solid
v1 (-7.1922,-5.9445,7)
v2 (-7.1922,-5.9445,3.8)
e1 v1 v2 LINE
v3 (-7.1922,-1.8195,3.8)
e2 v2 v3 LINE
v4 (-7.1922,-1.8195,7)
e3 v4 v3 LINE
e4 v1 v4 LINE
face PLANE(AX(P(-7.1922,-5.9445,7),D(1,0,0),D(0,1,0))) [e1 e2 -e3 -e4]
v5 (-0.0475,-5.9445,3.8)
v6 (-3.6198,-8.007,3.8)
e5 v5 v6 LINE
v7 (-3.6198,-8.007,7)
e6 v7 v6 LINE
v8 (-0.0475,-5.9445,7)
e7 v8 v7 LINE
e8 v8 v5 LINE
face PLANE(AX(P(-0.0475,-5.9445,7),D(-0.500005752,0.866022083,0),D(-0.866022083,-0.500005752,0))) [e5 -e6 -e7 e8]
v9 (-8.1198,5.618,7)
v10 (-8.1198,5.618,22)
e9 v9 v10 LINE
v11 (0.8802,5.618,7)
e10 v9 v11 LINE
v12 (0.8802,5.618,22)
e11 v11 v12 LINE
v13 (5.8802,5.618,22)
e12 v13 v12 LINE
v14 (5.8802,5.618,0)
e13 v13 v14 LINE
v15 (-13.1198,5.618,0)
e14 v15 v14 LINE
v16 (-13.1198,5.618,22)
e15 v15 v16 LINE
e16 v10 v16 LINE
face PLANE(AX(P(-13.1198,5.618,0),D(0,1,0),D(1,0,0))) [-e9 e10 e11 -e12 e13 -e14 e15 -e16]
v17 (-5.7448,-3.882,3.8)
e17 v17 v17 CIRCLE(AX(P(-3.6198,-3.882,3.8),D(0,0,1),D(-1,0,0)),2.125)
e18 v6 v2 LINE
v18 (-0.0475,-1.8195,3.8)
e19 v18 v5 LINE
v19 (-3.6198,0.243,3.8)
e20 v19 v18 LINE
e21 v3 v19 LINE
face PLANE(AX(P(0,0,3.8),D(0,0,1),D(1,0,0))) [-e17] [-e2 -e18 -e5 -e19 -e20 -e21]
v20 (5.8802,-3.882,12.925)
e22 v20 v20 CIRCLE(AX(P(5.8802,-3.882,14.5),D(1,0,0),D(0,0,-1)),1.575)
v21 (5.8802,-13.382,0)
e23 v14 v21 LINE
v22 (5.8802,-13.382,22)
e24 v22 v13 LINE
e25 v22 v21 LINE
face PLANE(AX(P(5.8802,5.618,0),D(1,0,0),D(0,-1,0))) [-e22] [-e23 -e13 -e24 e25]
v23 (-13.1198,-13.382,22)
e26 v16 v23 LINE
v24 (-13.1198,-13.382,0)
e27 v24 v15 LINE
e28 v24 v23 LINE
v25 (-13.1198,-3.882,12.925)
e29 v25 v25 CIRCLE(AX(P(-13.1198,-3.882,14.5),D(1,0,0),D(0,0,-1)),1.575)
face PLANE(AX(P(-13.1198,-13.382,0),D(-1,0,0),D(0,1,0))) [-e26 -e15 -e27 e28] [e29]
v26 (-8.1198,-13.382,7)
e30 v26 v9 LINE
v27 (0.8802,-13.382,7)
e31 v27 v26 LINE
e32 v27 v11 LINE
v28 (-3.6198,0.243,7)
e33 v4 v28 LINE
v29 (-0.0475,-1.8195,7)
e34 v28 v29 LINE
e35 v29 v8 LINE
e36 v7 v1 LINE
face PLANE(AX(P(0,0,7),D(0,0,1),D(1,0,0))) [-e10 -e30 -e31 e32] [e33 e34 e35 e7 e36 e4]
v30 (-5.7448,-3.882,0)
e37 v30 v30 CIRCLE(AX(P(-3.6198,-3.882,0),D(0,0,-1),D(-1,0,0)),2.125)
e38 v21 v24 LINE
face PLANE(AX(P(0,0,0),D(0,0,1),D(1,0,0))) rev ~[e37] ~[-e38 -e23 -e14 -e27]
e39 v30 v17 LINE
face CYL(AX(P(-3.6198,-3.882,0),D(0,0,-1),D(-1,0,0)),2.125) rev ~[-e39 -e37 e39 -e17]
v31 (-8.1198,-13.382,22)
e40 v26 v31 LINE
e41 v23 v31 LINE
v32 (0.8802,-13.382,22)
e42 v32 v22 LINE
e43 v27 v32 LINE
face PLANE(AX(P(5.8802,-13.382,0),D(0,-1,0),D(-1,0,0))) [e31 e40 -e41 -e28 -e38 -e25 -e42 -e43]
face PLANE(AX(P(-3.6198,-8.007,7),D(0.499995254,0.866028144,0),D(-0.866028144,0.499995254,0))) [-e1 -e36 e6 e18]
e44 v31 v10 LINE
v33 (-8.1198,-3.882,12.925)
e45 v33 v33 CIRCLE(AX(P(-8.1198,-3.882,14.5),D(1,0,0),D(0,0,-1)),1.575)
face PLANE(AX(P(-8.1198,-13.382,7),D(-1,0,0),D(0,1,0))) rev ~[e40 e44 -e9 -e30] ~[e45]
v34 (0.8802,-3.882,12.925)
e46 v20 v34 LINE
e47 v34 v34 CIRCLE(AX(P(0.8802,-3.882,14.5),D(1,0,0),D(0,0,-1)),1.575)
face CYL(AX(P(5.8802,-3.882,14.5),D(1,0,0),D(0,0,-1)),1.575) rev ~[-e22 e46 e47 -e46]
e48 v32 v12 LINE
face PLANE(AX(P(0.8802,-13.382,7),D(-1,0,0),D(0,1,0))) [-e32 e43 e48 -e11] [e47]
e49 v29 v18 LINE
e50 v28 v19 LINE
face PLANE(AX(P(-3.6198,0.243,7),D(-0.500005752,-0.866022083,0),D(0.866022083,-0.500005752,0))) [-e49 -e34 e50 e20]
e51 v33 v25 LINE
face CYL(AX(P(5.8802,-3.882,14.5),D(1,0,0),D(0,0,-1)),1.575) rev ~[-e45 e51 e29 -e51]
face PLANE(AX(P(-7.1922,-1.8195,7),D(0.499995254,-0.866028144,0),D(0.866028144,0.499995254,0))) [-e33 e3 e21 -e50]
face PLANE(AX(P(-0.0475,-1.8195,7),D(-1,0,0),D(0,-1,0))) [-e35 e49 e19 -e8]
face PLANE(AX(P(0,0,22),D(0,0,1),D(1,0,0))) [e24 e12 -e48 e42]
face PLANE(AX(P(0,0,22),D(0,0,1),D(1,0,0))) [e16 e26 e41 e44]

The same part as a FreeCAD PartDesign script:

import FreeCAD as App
import Part
import Sketcher
from FreeCAD import Vector
Q = App.Units.Quantity

doc = App.newDocument("Part")
body = doc.addObject("PartDesign::Body", "Body")

sketch1 = doc.addObject("Sketcher::SketchObject", "Sketch")
body.addObject(sketch1)
sketch1.AttachmentSupport = (doc.XY_Plane, [""])
sketch1.MapMode = "FlatFace"
sketch1.addGeometry(Part.LineSegment(Vector(5.8802, 5.618, 0), Vector(-13.1198, 5.618, 0)), False)
sketch1.addGeometry(Part.LineSegment(Vector(-13.1198, 5.618, 0), Vector(-13.1198, -13.382, 0)), False)
sketch1.addGeometry(Part.LineSegment(Vector(-13.1198, -13.382, 0), Vector(5.8802, -13.382, 0)), False)
sketch1.addGeometry(Part.LineSegment(Vector(5.8802, -13.382, 0), Vector(5.8802, 5.618, 0)), False)
sketch1.addConstraint(Sketcher.Constraint("Coincident", 0, 2, 1, 1))
sketch1.addConstraint(Sketcher.Constraint("Coincident", 1, 2, 2, 1))
sketch1.addConstraint(Sketcher.Constraint("Coincident", 2, 2, 3, 1))
sketch1.addConstraint(Sketcher.Constraint("Coincident", 3, 2, 0, 1))
sketch1.addConstraint(Sketcher.Constraint("Horizontal", 0))
sketch1.addConstraint(Sketcher.Constraint("Vertical", 1))
sketch1.addConstraint(Sketcher.Constraint("Horizontal", 2))
sketch1.addConstraint(Sketcher.Constraint("Vertical", 3))
sketch1.addConstraint(Sketcher.Constraint("Equal", 2, 1))
sketch1.addConstraint(Sketcher.Constraint("DistanceX", 0, 2, 0, 1, Q("19 mm")))
sketch1.addConstraint(Sketcher.Constraint("DistanceY", -1, 1, 0, 2, Q("5.618 mm")))
sketch1.addConstraint(Sketcher.Constraint("DistanceX", 0, 2, -1, 1, Q("13.1198 mm")))
pad1 = doc.addObject("PartDesign::Pad", "Pad")
body.addObject(pad1)
pad1.Profile = sketch1
pad1.Length = 7

sketch2 = doc.addObject("Sketcher::SketchObject", "Sketch001")
body.addObject(sketch2)
sketch2.AttachmentSupport = (doc.XY_Plane, [""])
sketch2.MapMode = "FlatFace"
sketch2.AttachmentOffset = App.Placement(Vector(0, 0, 7), App.Rotation())
sketch2.addGeometry(Part.LineSegment(Vector(5.8802, -13.382, 0), Vector(5.8802, 5.618, 0)), False)
sketch2.addGeometry(Part.LineSegment(Vector(5.8802, 5.618, 0), Vector(0.8802, 5.618, 0)), False)
sketch2.addGeometry(Part.LineSegment(Vector(0.8802, 5.618, 0), Vector(0.8802, -13.382, 0)), False)
sketch2.addGeometry(Part.LineSegment(Vector(0.8802, -13.382, 0), Vector(5.8802, -13.382, 0)), False)
sketch2.addGeometry(Part.LineSegment(Vector(-8.1198, -13.382, 0), Vector(-8.1198, 5.618, 0)), False)
sketch2.addGeometry(Part.LineSegment(Vector(-8.1198, 5.618, 0), Vector(-13.1198, 5.618, 0)), False)
sketch2.addGeometry(Part.LineSegment(Vector(-13.1198, 5.618, 0), Vector(-13.1198, -13.382, 0)), False)
sketch2.addGeometry(Part.LineSegment(Vector(-13.1198, -13.382, 0), Vector(-8.1198, -13.382, 0)), False)
sketch2.addConstraint(Sketcher.Constraint("Coincident", 0, 2, 1, 1))
sketch2.addConstraint(Sketcher.Constraint("Coincident", 1, 2, 2, 1))
sketch2.addConstraint(Sketcher.Constraint("Coincident", 2, 2, 3, 1))
sketch2.addConstraint(Sketcher.Constraint("Coincident", 3, 2, 0, 1))
sketch2.addConstraint(Sketcher.Constraint("Coincident", 4, 2, 5, 1))
sketch2.addConstraint(Sketcher.Constraint("Coincident", 5, 2, 6, 1))
sketch2.addConstraint(Sketcher.Constraint("Coincident", 6, 2, 7, 1))
sketch2.addConstraint(Sketcher.Constraint("Coincident", 7, 2, 4, 1))
sketch2.addConstraint(Sketcher.Constraint("Vertical", 0))
sketch2.addConstraint(Sketcher.Constraint("Horizontal", 1))
sketch2.addConstraint(Sketcher.Constraint("Vertical", 2))
sketch2.addConstraint(Sketcher.Constraint("Horizontal", 3))
sketch2.addConstraint(Sketcher.Constraint("Vertical", 4))
sketch2.addConstraint(Sketcher.Constraint("Horizontal", 5))
sketch2.addConstraint(Sketcher.Constraint("Vertical", 6))
sketch2.addConstraint(Sketcher.Constraint("Horizontal", 7))
sketch2.addConstraint(Sketcher.Constraint("Horizontal", 1, 2, 4, 2))
sketch2.addConstraint(Sketcher.Constraint("Horizontal", 3, 2, 6, 2))
sketch2.addConstraint(Sketcher.Constraint("Equal", 3, 5))
sketch2.addConstraint(Sketcher.Constraint("DistanceX", 4, 2, 1, 2, Q("9 mm")))
sketch2.addConstraint(Sketcher.Constraint("DistanceX", 1, 2, 1, 1, Q("5 mm")))
sketch2.addConstraint(Sketcher.Constraint("DistanceY", 0, 1, 0, 2, Q("19 mm")))
sketch2.addConstraint(Sketcher.Constraint("DistanceY", -1, 1, 0, 2, Q("5.618 mm")))
sketch2.addConstraint(Sketcher.Constraint("DistanceX", -1, 1, 0, 2, Q("5.8802 mm")))
pad2 = doc.addObject("PartDesign::Pad", "Pad001")
body.addObject(pad2)
pad2.Profile = sketch2
pad2.Length = 15

sketch3 = doc.addObject("Sketcher::SketchObject", "Sketch002")
body.addObject(sketch3)
sketch3.AttachmentSupport = (doc.XY_Plane, [""])
sketch3.MapMode = "FlatFace"
sketch3.addGeometry(Part.Circle(Vector(-3.6198, -3.882, 0), Vector(0, 0, 1), 2.125), False)
sketch3.addConstraint(Sketcher.Constraint("Diameter", 0, Q("4.25 mm")))
sketch3.addConstraint(Sketcher.Constraint("DistanceY", 0, 3, -1, 1, Q("3.882 mm")))
sketch3.addConstraint(Sketcher.Constraint("DistanceX", 0, 3, -1, 1, Q("3.6198 mm")))
pocket1 = doc.addObject("PartDesign::Pocket", "Pocket")
body.addObject(pocket1)
pocket1.Profile = sketch3
pocket1.Type = "UpToFirst"
pocket1.Reversed = True

sketch4 = doc.addObject("Sketcher::SketchObject", "Sketch003")
body.addObject(sketch4)
sketch4.AttachmentSupport = (doc.YZ_Plane, [""])
sketch4.MapMode = "FlatFace"
sketch4.AttachmentOffset = App.Placement(Vector(0, 0, 5.8802), App.Rotation())
sketch4.addGeometry(Part.Circle(Vector(-3.882, 14.5, 0), Vector(0, 0, 1), 1.575), False)
sketch4.addConstraint(Sketcher.Constraint("Diameter", 0, Q("3.15 mm")))
sketch4.addConstraint(Sketcher.Constraint("DistanceY", -1, 1, 0, 3, Q("14.5 mm")))
sketch4.addConstraint(Sketcher.Constraint("DistanceX", 0, 3, -1, 1, Q("3.882 mm")))
pocket2 = doc.addObject("PartDesign::Pocket", "Pocket001")
body.addObject(pocket2)
pocket2.Profile = sketch4
pocket2.Type = "ThroughAll"

sketch5 = doc.addObject("Sketcher::SketchObject", "Sketch004")
body.addObject(sketch5)
sketch5.AttachmentSupport = (doc.XY_Plane, [""])
sketch5.MapMode = "FlatFace"
sketch5.AttachmentOffset = App.Placement(Vector(0, 0, 7), App.Rotation())
sketch5.addGeometry(Part.LineSegment(Vector(-0.0475, -1.8195, 0), Vector(-3.6198, 0.243, 0)), False)
sketch5.addGeometry(Part.LineSegment(Vector(-3.6198, 0.243, 0), Vector(-7.1922, -1.8195, 0)), False)
sketch5.addGeometry(Part.LineSegment(Vector(-7.1922, -1.8195, 0), Vector(-7.1922, -5.9445, 0)), False)
sketch5.addGeometry(Part.LineSegment(Vector(-7.1922, -5.9445, 0), Vector(-3.6198, -8.007, 0)), False)
sketch5.addGeometry(Part.LineSegment(Vector(-3.6198, -8.007, 0), Vector(-0.0475, -5.9445, 0)), False)
sketch5.addGeometry(Part.LineSegment(Vector(-0.0475, -5.9445, 0), Vector(-0.0475, -1.8195, 0)), False)
sketch5.addGeometry(Part.Circle(Vector(-3.6198, -3.882, 0), Vector(0, 0, 1), 2.125), False)
sketch5.addConstraint(Sketcher.Constraint("Coincident", 0, 2, 1, 1))
sketch5.addConstraint(Sketcher.Constraint("Coincident", 1, 2, 2, 1))
sketch5.addConstraint(Sketcher.Constraint("Coincident", 2, 2, 3, 1))
sketch5.addConstraint(Sketcher.Constraint("Coincident", 3, 2, 4, 1))
sketch5.addConstraint(Sketcher.Constraint("Coincident", 4, 2, 5, 1))
sketch5.addConstraint(Sketcher.Constraint("Coincident", 5, 2, 0, 1))
sketch5.addConstraint(Sketcher.Constraint("Vertical", 2))
sketch5.addConstraint(Sketcher.Constraint("Vertical", 5))
sketch5.addConstraint(Sketcher.Constraint("Parallel", 0, 3))
sketch5.addConstraint(Sketcher.Constraint("Parallel", 1, 4))
sketch5.addConstraint(Sketcher.Constraint("Horizontal", 2, 2, 4, 2))
sketch5.addConstraint(Sketcher.Constraint("Horizontal", 1, 2, 5, 2))
sketch5.addConstraint(Sketcher.Constraint("Vertical", 6, 3, 0, 2))
sketch5.addConstraint(Sketcher.Constraint("Vertical", 0, 2, 3, 2))
sketch5.addConstraint(Sketcher.Constraint("Diameter", 6, Q("4.25 mm")))
sketch5.addConstraint(Sketcher.Constraint("Angle", 0, Q("149.9996 deg")))
sketch5.addConstraint(Sketcher.Constraint("DistanceY", 3, 2, 0, 2, Q("8.25 mm")))
sketch5.addConstraint(Sketcher.Constraint("DistanceY", 2, 2, 2, 1, Q("4.125 mm")))
sketch5.addConstraint(Sketcher.Constraint("DistanceY", 6, 3, -1, 1, Q("3.882 mm")))
sketch5.addConstraint(Sketcher.Constraint("DistanceY", -1, 1, 0, 2, Q("0.243 mm")))
sketch5.addConstraint(Sketcher.Constraint("DistanceX", 6, 3, -1, 1, Q("3.6198 mm")))
pocket3 = doc.addObject("PartDesign::Pocket", "Pocket002")
body.addObject(pocket3)
pocket3.Profile = sketch5
pocket3.Length = 3.2

doc.recompute()
